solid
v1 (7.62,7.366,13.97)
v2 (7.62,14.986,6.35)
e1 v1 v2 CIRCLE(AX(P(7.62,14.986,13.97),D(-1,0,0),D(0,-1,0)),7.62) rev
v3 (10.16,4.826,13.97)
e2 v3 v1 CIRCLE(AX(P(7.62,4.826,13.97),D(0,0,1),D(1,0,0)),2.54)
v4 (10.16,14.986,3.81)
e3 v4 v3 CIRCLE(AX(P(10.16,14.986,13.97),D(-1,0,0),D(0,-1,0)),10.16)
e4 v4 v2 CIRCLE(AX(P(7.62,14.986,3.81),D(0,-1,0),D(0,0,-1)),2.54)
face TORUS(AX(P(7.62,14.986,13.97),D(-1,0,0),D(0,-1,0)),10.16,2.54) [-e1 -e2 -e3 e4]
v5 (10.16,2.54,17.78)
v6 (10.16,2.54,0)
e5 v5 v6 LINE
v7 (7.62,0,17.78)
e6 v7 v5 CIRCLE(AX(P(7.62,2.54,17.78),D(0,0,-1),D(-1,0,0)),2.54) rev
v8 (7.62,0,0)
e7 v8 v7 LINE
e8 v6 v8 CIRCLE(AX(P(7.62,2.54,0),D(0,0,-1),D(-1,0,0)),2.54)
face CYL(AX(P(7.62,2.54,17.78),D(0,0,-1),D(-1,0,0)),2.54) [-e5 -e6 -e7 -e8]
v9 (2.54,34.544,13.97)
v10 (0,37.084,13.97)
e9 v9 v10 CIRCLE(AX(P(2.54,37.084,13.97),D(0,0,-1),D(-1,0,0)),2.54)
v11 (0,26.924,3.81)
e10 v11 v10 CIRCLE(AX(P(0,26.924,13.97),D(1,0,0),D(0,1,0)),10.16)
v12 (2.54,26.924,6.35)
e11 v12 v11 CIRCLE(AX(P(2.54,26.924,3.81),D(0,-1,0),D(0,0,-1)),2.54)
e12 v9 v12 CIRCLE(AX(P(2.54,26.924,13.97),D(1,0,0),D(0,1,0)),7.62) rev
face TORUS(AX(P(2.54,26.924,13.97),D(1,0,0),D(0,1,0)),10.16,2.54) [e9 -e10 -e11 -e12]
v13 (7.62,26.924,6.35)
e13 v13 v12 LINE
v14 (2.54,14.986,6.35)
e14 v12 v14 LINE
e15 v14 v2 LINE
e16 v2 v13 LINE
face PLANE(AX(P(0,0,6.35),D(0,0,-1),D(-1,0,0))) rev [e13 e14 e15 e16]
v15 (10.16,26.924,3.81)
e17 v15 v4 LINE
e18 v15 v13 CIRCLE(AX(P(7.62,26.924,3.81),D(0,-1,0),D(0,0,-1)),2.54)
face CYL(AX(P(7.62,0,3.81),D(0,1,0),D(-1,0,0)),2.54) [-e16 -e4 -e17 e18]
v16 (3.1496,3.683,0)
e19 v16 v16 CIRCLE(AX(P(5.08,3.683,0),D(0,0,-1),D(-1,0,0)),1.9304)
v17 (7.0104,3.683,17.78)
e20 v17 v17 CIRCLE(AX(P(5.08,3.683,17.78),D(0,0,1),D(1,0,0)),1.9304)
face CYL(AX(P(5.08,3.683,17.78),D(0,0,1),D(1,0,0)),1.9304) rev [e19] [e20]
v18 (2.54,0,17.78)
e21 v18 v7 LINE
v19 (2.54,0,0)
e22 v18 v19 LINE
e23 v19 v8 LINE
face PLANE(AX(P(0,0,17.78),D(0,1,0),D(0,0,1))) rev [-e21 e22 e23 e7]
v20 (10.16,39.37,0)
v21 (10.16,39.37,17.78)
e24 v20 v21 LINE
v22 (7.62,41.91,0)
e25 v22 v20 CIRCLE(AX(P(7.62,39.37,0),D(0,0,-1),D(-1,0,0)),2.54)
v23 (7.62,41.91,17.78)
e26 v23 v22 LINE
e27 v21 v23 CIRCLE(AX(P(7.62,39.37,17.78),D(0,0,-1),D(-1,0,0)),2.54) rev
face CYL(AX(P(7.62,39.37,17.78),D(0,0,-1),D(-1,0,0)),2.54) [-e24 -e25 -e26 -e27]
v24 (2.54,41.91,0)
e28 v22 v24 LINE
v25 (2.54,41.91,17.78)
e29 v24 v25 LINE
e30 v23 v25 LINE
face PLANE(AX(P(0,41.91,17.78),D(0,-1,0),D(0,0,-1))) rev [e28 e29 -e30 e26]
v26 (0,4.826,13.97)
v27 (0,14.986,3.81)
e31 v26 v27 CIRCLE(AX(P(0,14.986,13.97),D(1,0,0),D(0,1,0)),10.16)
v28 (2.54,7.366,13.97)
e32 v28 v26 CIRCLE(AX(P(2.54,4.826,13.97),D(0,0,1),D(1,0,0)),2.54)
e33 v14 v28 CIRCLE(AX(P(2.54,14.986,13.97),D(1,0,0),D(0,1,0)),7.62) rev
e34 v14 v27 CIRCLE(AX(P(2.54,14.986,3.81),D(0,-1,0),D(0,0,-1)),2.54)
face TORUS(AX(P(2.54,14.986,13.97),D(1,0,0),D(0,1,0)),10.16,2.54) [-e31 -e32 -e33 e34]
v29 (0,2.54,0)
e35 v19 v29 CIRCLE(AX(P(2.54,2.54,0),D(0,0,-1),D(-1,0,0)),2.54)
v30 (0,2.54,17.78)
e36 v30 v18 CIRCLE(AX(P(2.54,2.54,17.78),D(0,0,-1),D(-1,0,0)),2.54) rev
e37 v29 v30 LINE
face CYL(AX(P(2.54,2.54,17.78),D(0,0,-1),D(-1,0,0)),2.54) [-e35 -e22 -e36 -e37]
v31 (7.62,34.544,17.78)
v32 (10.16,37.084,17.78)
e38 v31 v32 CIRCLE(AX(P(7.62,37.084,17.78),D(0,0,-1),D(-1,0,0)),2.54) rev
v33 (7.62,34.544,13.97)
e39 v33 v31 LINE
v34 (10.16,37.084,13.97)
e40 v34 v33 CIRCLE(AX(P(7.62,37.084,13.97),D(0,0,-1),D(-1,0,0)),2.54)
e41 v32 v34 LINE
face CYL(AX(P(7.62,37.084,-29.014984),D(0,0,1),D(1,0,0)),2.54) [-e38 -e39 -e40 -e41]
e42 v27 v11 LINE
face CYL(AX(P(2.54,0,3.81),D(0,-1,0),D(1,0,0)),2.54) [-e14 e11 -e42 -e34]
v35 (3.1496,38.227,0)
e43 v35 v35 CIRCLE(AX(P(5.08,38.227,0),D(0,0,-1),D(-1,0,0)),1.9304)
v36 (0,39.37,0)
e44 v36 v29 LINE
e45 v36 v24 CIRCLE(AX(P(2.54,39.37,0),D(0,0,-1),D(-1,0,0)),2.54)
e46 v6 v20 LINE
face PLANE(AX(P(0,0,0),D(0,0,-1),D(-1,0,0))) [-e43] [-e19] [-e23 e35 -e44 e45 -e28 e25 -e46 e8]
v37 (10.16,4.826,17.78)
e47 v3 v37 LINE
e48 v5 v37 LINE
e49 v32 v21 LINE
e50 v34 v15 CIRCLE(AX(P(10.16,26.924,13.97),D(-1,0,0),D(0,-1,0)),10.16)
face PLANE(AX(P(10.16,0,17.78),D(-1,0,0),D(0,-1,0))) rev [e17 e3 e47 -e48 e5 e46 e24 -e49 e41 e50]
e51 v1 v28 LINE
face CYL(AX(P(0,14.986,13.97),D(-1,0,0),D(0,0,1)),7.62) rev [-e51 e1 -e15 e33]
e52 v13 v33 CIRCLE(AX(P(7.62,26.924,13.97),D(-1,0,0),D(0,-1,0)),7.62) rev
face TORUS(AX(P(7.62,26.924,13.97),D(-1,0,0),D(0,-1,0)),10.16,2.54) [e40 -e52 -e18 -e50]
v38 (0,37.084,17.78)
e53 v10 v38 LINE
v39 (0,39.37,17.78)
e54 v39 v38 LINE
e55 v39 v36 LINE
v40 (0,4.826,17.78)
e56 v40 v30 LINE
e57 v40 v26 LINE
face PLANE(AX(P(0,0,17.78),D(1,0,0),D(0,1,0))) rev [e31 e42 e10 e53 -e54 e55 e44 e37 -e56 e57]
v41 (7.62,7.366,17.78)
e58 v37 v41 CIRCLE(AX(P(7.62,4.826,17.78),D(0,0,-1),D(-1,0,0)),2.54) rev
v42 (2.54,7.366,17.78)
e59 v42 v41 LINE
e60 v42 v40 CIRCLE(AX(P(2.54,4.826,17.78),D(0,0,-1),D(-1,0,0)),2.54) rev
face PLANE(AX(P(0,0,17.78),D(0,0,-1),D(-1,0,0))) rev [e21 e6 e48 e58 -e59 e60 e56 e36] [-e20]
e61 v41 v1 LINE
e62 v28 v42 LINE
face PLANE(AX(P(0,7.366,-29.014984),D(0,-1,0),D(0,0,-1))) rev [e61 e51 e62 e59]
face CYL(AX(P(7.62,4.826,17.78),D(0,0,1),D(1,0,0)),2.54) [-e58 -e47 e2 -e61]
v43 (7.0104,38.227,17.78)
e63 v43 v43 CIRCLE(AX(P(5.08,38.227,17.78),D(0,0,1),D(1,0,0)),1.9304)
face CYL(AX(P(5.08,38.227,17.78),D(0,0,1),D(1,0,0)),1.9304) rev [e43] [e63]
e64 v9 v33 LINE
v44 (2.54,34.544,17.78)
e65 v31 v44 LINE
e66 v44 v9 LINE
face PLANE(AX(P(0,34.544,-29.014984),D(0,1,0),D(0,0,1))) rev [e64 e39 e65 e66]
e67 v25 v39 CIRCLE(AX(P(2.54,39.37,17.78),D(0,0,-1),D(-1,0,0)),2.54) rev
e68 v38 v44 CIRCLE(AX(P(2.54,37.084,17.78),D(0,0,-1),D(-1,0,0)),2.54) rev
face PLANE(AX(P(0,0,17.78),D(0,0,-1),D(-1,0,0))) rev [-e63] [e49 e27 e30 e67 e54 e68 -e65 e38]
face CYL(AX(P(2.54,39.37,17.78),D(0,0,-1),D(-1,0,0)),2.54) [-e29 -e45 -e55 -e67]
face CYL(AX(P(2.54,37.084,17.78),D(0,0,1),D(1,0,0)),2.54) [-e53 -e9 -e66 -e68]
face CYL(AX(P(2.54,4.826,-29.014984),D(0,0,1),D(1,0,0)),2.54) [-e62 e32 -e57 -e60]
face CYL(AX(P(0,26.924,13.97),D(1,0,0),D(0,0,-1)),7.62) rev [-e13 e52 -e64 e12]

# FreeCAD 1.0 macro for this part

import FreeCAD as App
import Part
import Sketcher
Q = App.Units.Quantity


def edges_at(feature, points):
    """Names of the edges that pass closest to the given points."""
    edges = feature.Shape.Edges
    near = lambda p: min(range(len(edges)), key=lambda i: edges[i].distToShape(Part.Vertex(*p))[0])
    return sorted({f"Edge{near(p) + 1}" for p in points})


def add_polygon(sketch, points):
    """Adds a closed chain of lines whose ends are joined by coincident constraints."""
    first, n = sketch.GeometryCount, len(points)
    for a, b in zip(points, points[1:] + points[:1]):
        sketch.addGeometry(Part.LineSegment(App.Vector(*a, 0), App.Vector(*b, 0)), False)
    for i in range(n):
        sketch.addConstraint(Sketcher.Constraint("Coincident", first + i, 2, first + (i + 1) % n, 1))

doc = App.newDocument("Part")
body = doc.addObject("PartDesign::Body", "Body")

# Sketch on XY plane
sketch1 = body.newObject("Sketcher::SketchObject", "Sketch")
sketch1.AttachmentSupport = (doc.getObject("XY_Plane"), [""])
sketch1.MapMode = "FlatFace"
add_polygon(sketch1, [(0, 42), (0, 0), (10, 0), (10, 42)])  # lines 0-3
sketch1.addConstraint(Sketcher.Constraint("Vertical", 0))
sketch1.addConstraint(Sketcher.Constraint("Horizontal", 1))
sketch1.addConstraint(Sketcher.Constraint("Vertical", 2))
sketch1.addConstraint(Sketcher.Constraint("Horizontal", 3))
sketch1.addConstraint(Sketcher.Constraint("Coincident", 0, 2, -1, 1))
sketch1.addConstraint(Sketcher.Constraint("DistanceX", 1, 1, 1, 2, Q("0.4 in")))
sketch1.addConstraint(Sketcher.Constraint("DistanceY", 0, 2, 0, 1, Q("1.65 in")))
pad1 = body.newObject("PartDesign::Pad", "Pad")
pad1.Profile = sketch1
pad1.Length = Q("0.7 in")

# Sketch on XY plane
sketch2 = body.newObject("Sketcher::SketchObject", "Sketch001")
sketch2.AttachmentSupport = (doc.getObject("XY_Plane"), [""])
sketch2.MapMode = "FlatFace"
sketch2.AttachmentOffset = App.Placement(App.Vector(0, 0, 0.7 * 25.4), App.Rotation())
add_polygon(sketch2, [(0, 35), (0, 7), (10, 7), (10, 35)])  # lines 0-3
sketch2.addConstraint(Sketcher.Constraint("Vertical", 0))
sketch2.addConstraint(Sketcher.Constraint("Horizontal", 1))
sketch2.addConstraint(Sketcher.Constraint("Vertical", 2))
sketch2.addConstraint(Sketcher.Constraint("Horizontal", 3))
sketch2.addConstraint(Sketcher.Constraint("PointOnObject", 0, 2, -2))
sketch2.addConstraint(Sketcher.Constraint("DistanceX", 1, 1, 1, 2, Q("0.4 in")))
sketch2.addConstraint(Sketcher.Constraint("DistanceY", 0, 2, 0, 1, Q("1.07 in")))
sketch2.addConstraint(Sketcher.Constraint("DistanceY", -1, 1, 0, 2, Q("0.29 in")))
pocket1 = body.newObject("PartDesign::Pocket", "Pocket")
pocket1.Profile = sketch2
pocket1.Length = Q("0.45 in")

# Sketch on XY plane
sketch3 = body.newObject("Sketcher::SketchObject", "Sketch002")
sketch3.AttachmentSupport = (doc.getObject("XY_Plane"), [""])
sketch3.MapMode = "FlatFace"
sketch3.AttachmentOffset = App.Placement(App.Vector(0, 0, 0.7 * 25.4), App.Rotation())
sketch3.addGeometry(Part.Circle(App.Vector(5.1, 3.7, 0), App.Vector(0, 0, 1), 1.9), False)
sketch3.addGeometry(Part.Circle(App.Vector(5.1, 38.2, 0), App.Vector(0, 0, 1), 1.9), False)
sketch3.addConstraint(Sketcher.Constraint("Equal", 0, 1))
sketch3.addConstraint(Sketcher.Constraint("Vertical", 0, 3, 1, 3))
sketch3.addConstraint(Sketcher.Constraint("Diameter", 0, Q("0.152 in")))
sketch3.addConstraint(Sketcher.Constraint("DistanceX", -1, 1, 0, 3, Q("0.2 in")))
sketch3.addConstraint(Sketcher.Constraint("DistanceY", 0, 3, 1, 3, Q("1.36 in")))
sketch3.addConstraint(Sketcher.Constraint("DistanceY", -1, 1, 0, 3, Q("0.145 in")))
doc.recompute()
hole = body.newObject("PartDesign::Hole", "Hole")
hole.Profile = sketch3
hole.ThreadType = "None"
hole.Diameter = Q("0.152 in")
hole.DepthType = "ThroughAll"
doc.recompute()

fillet = body.newObject("PartDesign::Fillet", "Fillet")
fillet.Base = (hole, edges_at(hole, [(5.08, 7.366, 6.35), (5.08, 34.544, 6.35)]))
fillet.Radius = Q("0.3 in")
doc.recompute()

fillet2 = body.newObject("PartDesign::Fillet", "Fillet001")
fillet2.Base = (fillet, edges_at(fillet, [
    (0, 20.955, 6.35),
    (10.16, 20.955, 6.35),
    (0, 7.366, 15.875),
    (10.16, 7.366, 15.875),
    (10.16, 34.544, 15.875),
    (0, 34.544, 15.875),
    (10.16, 9.598, 8.582),
    (0, 9.598, 8.582),
    (0, 32.312, 8.582),
    (10.16, 32.312, 8.582),
    (0, 41.91, 8.89),
    (10.16, 41.91, 8.89),
    (10.16, 0, 8.89),
    (0, 0, 8.89),
]))
fillet2.Radius = Q("0.1 in")

doc.recompute()
